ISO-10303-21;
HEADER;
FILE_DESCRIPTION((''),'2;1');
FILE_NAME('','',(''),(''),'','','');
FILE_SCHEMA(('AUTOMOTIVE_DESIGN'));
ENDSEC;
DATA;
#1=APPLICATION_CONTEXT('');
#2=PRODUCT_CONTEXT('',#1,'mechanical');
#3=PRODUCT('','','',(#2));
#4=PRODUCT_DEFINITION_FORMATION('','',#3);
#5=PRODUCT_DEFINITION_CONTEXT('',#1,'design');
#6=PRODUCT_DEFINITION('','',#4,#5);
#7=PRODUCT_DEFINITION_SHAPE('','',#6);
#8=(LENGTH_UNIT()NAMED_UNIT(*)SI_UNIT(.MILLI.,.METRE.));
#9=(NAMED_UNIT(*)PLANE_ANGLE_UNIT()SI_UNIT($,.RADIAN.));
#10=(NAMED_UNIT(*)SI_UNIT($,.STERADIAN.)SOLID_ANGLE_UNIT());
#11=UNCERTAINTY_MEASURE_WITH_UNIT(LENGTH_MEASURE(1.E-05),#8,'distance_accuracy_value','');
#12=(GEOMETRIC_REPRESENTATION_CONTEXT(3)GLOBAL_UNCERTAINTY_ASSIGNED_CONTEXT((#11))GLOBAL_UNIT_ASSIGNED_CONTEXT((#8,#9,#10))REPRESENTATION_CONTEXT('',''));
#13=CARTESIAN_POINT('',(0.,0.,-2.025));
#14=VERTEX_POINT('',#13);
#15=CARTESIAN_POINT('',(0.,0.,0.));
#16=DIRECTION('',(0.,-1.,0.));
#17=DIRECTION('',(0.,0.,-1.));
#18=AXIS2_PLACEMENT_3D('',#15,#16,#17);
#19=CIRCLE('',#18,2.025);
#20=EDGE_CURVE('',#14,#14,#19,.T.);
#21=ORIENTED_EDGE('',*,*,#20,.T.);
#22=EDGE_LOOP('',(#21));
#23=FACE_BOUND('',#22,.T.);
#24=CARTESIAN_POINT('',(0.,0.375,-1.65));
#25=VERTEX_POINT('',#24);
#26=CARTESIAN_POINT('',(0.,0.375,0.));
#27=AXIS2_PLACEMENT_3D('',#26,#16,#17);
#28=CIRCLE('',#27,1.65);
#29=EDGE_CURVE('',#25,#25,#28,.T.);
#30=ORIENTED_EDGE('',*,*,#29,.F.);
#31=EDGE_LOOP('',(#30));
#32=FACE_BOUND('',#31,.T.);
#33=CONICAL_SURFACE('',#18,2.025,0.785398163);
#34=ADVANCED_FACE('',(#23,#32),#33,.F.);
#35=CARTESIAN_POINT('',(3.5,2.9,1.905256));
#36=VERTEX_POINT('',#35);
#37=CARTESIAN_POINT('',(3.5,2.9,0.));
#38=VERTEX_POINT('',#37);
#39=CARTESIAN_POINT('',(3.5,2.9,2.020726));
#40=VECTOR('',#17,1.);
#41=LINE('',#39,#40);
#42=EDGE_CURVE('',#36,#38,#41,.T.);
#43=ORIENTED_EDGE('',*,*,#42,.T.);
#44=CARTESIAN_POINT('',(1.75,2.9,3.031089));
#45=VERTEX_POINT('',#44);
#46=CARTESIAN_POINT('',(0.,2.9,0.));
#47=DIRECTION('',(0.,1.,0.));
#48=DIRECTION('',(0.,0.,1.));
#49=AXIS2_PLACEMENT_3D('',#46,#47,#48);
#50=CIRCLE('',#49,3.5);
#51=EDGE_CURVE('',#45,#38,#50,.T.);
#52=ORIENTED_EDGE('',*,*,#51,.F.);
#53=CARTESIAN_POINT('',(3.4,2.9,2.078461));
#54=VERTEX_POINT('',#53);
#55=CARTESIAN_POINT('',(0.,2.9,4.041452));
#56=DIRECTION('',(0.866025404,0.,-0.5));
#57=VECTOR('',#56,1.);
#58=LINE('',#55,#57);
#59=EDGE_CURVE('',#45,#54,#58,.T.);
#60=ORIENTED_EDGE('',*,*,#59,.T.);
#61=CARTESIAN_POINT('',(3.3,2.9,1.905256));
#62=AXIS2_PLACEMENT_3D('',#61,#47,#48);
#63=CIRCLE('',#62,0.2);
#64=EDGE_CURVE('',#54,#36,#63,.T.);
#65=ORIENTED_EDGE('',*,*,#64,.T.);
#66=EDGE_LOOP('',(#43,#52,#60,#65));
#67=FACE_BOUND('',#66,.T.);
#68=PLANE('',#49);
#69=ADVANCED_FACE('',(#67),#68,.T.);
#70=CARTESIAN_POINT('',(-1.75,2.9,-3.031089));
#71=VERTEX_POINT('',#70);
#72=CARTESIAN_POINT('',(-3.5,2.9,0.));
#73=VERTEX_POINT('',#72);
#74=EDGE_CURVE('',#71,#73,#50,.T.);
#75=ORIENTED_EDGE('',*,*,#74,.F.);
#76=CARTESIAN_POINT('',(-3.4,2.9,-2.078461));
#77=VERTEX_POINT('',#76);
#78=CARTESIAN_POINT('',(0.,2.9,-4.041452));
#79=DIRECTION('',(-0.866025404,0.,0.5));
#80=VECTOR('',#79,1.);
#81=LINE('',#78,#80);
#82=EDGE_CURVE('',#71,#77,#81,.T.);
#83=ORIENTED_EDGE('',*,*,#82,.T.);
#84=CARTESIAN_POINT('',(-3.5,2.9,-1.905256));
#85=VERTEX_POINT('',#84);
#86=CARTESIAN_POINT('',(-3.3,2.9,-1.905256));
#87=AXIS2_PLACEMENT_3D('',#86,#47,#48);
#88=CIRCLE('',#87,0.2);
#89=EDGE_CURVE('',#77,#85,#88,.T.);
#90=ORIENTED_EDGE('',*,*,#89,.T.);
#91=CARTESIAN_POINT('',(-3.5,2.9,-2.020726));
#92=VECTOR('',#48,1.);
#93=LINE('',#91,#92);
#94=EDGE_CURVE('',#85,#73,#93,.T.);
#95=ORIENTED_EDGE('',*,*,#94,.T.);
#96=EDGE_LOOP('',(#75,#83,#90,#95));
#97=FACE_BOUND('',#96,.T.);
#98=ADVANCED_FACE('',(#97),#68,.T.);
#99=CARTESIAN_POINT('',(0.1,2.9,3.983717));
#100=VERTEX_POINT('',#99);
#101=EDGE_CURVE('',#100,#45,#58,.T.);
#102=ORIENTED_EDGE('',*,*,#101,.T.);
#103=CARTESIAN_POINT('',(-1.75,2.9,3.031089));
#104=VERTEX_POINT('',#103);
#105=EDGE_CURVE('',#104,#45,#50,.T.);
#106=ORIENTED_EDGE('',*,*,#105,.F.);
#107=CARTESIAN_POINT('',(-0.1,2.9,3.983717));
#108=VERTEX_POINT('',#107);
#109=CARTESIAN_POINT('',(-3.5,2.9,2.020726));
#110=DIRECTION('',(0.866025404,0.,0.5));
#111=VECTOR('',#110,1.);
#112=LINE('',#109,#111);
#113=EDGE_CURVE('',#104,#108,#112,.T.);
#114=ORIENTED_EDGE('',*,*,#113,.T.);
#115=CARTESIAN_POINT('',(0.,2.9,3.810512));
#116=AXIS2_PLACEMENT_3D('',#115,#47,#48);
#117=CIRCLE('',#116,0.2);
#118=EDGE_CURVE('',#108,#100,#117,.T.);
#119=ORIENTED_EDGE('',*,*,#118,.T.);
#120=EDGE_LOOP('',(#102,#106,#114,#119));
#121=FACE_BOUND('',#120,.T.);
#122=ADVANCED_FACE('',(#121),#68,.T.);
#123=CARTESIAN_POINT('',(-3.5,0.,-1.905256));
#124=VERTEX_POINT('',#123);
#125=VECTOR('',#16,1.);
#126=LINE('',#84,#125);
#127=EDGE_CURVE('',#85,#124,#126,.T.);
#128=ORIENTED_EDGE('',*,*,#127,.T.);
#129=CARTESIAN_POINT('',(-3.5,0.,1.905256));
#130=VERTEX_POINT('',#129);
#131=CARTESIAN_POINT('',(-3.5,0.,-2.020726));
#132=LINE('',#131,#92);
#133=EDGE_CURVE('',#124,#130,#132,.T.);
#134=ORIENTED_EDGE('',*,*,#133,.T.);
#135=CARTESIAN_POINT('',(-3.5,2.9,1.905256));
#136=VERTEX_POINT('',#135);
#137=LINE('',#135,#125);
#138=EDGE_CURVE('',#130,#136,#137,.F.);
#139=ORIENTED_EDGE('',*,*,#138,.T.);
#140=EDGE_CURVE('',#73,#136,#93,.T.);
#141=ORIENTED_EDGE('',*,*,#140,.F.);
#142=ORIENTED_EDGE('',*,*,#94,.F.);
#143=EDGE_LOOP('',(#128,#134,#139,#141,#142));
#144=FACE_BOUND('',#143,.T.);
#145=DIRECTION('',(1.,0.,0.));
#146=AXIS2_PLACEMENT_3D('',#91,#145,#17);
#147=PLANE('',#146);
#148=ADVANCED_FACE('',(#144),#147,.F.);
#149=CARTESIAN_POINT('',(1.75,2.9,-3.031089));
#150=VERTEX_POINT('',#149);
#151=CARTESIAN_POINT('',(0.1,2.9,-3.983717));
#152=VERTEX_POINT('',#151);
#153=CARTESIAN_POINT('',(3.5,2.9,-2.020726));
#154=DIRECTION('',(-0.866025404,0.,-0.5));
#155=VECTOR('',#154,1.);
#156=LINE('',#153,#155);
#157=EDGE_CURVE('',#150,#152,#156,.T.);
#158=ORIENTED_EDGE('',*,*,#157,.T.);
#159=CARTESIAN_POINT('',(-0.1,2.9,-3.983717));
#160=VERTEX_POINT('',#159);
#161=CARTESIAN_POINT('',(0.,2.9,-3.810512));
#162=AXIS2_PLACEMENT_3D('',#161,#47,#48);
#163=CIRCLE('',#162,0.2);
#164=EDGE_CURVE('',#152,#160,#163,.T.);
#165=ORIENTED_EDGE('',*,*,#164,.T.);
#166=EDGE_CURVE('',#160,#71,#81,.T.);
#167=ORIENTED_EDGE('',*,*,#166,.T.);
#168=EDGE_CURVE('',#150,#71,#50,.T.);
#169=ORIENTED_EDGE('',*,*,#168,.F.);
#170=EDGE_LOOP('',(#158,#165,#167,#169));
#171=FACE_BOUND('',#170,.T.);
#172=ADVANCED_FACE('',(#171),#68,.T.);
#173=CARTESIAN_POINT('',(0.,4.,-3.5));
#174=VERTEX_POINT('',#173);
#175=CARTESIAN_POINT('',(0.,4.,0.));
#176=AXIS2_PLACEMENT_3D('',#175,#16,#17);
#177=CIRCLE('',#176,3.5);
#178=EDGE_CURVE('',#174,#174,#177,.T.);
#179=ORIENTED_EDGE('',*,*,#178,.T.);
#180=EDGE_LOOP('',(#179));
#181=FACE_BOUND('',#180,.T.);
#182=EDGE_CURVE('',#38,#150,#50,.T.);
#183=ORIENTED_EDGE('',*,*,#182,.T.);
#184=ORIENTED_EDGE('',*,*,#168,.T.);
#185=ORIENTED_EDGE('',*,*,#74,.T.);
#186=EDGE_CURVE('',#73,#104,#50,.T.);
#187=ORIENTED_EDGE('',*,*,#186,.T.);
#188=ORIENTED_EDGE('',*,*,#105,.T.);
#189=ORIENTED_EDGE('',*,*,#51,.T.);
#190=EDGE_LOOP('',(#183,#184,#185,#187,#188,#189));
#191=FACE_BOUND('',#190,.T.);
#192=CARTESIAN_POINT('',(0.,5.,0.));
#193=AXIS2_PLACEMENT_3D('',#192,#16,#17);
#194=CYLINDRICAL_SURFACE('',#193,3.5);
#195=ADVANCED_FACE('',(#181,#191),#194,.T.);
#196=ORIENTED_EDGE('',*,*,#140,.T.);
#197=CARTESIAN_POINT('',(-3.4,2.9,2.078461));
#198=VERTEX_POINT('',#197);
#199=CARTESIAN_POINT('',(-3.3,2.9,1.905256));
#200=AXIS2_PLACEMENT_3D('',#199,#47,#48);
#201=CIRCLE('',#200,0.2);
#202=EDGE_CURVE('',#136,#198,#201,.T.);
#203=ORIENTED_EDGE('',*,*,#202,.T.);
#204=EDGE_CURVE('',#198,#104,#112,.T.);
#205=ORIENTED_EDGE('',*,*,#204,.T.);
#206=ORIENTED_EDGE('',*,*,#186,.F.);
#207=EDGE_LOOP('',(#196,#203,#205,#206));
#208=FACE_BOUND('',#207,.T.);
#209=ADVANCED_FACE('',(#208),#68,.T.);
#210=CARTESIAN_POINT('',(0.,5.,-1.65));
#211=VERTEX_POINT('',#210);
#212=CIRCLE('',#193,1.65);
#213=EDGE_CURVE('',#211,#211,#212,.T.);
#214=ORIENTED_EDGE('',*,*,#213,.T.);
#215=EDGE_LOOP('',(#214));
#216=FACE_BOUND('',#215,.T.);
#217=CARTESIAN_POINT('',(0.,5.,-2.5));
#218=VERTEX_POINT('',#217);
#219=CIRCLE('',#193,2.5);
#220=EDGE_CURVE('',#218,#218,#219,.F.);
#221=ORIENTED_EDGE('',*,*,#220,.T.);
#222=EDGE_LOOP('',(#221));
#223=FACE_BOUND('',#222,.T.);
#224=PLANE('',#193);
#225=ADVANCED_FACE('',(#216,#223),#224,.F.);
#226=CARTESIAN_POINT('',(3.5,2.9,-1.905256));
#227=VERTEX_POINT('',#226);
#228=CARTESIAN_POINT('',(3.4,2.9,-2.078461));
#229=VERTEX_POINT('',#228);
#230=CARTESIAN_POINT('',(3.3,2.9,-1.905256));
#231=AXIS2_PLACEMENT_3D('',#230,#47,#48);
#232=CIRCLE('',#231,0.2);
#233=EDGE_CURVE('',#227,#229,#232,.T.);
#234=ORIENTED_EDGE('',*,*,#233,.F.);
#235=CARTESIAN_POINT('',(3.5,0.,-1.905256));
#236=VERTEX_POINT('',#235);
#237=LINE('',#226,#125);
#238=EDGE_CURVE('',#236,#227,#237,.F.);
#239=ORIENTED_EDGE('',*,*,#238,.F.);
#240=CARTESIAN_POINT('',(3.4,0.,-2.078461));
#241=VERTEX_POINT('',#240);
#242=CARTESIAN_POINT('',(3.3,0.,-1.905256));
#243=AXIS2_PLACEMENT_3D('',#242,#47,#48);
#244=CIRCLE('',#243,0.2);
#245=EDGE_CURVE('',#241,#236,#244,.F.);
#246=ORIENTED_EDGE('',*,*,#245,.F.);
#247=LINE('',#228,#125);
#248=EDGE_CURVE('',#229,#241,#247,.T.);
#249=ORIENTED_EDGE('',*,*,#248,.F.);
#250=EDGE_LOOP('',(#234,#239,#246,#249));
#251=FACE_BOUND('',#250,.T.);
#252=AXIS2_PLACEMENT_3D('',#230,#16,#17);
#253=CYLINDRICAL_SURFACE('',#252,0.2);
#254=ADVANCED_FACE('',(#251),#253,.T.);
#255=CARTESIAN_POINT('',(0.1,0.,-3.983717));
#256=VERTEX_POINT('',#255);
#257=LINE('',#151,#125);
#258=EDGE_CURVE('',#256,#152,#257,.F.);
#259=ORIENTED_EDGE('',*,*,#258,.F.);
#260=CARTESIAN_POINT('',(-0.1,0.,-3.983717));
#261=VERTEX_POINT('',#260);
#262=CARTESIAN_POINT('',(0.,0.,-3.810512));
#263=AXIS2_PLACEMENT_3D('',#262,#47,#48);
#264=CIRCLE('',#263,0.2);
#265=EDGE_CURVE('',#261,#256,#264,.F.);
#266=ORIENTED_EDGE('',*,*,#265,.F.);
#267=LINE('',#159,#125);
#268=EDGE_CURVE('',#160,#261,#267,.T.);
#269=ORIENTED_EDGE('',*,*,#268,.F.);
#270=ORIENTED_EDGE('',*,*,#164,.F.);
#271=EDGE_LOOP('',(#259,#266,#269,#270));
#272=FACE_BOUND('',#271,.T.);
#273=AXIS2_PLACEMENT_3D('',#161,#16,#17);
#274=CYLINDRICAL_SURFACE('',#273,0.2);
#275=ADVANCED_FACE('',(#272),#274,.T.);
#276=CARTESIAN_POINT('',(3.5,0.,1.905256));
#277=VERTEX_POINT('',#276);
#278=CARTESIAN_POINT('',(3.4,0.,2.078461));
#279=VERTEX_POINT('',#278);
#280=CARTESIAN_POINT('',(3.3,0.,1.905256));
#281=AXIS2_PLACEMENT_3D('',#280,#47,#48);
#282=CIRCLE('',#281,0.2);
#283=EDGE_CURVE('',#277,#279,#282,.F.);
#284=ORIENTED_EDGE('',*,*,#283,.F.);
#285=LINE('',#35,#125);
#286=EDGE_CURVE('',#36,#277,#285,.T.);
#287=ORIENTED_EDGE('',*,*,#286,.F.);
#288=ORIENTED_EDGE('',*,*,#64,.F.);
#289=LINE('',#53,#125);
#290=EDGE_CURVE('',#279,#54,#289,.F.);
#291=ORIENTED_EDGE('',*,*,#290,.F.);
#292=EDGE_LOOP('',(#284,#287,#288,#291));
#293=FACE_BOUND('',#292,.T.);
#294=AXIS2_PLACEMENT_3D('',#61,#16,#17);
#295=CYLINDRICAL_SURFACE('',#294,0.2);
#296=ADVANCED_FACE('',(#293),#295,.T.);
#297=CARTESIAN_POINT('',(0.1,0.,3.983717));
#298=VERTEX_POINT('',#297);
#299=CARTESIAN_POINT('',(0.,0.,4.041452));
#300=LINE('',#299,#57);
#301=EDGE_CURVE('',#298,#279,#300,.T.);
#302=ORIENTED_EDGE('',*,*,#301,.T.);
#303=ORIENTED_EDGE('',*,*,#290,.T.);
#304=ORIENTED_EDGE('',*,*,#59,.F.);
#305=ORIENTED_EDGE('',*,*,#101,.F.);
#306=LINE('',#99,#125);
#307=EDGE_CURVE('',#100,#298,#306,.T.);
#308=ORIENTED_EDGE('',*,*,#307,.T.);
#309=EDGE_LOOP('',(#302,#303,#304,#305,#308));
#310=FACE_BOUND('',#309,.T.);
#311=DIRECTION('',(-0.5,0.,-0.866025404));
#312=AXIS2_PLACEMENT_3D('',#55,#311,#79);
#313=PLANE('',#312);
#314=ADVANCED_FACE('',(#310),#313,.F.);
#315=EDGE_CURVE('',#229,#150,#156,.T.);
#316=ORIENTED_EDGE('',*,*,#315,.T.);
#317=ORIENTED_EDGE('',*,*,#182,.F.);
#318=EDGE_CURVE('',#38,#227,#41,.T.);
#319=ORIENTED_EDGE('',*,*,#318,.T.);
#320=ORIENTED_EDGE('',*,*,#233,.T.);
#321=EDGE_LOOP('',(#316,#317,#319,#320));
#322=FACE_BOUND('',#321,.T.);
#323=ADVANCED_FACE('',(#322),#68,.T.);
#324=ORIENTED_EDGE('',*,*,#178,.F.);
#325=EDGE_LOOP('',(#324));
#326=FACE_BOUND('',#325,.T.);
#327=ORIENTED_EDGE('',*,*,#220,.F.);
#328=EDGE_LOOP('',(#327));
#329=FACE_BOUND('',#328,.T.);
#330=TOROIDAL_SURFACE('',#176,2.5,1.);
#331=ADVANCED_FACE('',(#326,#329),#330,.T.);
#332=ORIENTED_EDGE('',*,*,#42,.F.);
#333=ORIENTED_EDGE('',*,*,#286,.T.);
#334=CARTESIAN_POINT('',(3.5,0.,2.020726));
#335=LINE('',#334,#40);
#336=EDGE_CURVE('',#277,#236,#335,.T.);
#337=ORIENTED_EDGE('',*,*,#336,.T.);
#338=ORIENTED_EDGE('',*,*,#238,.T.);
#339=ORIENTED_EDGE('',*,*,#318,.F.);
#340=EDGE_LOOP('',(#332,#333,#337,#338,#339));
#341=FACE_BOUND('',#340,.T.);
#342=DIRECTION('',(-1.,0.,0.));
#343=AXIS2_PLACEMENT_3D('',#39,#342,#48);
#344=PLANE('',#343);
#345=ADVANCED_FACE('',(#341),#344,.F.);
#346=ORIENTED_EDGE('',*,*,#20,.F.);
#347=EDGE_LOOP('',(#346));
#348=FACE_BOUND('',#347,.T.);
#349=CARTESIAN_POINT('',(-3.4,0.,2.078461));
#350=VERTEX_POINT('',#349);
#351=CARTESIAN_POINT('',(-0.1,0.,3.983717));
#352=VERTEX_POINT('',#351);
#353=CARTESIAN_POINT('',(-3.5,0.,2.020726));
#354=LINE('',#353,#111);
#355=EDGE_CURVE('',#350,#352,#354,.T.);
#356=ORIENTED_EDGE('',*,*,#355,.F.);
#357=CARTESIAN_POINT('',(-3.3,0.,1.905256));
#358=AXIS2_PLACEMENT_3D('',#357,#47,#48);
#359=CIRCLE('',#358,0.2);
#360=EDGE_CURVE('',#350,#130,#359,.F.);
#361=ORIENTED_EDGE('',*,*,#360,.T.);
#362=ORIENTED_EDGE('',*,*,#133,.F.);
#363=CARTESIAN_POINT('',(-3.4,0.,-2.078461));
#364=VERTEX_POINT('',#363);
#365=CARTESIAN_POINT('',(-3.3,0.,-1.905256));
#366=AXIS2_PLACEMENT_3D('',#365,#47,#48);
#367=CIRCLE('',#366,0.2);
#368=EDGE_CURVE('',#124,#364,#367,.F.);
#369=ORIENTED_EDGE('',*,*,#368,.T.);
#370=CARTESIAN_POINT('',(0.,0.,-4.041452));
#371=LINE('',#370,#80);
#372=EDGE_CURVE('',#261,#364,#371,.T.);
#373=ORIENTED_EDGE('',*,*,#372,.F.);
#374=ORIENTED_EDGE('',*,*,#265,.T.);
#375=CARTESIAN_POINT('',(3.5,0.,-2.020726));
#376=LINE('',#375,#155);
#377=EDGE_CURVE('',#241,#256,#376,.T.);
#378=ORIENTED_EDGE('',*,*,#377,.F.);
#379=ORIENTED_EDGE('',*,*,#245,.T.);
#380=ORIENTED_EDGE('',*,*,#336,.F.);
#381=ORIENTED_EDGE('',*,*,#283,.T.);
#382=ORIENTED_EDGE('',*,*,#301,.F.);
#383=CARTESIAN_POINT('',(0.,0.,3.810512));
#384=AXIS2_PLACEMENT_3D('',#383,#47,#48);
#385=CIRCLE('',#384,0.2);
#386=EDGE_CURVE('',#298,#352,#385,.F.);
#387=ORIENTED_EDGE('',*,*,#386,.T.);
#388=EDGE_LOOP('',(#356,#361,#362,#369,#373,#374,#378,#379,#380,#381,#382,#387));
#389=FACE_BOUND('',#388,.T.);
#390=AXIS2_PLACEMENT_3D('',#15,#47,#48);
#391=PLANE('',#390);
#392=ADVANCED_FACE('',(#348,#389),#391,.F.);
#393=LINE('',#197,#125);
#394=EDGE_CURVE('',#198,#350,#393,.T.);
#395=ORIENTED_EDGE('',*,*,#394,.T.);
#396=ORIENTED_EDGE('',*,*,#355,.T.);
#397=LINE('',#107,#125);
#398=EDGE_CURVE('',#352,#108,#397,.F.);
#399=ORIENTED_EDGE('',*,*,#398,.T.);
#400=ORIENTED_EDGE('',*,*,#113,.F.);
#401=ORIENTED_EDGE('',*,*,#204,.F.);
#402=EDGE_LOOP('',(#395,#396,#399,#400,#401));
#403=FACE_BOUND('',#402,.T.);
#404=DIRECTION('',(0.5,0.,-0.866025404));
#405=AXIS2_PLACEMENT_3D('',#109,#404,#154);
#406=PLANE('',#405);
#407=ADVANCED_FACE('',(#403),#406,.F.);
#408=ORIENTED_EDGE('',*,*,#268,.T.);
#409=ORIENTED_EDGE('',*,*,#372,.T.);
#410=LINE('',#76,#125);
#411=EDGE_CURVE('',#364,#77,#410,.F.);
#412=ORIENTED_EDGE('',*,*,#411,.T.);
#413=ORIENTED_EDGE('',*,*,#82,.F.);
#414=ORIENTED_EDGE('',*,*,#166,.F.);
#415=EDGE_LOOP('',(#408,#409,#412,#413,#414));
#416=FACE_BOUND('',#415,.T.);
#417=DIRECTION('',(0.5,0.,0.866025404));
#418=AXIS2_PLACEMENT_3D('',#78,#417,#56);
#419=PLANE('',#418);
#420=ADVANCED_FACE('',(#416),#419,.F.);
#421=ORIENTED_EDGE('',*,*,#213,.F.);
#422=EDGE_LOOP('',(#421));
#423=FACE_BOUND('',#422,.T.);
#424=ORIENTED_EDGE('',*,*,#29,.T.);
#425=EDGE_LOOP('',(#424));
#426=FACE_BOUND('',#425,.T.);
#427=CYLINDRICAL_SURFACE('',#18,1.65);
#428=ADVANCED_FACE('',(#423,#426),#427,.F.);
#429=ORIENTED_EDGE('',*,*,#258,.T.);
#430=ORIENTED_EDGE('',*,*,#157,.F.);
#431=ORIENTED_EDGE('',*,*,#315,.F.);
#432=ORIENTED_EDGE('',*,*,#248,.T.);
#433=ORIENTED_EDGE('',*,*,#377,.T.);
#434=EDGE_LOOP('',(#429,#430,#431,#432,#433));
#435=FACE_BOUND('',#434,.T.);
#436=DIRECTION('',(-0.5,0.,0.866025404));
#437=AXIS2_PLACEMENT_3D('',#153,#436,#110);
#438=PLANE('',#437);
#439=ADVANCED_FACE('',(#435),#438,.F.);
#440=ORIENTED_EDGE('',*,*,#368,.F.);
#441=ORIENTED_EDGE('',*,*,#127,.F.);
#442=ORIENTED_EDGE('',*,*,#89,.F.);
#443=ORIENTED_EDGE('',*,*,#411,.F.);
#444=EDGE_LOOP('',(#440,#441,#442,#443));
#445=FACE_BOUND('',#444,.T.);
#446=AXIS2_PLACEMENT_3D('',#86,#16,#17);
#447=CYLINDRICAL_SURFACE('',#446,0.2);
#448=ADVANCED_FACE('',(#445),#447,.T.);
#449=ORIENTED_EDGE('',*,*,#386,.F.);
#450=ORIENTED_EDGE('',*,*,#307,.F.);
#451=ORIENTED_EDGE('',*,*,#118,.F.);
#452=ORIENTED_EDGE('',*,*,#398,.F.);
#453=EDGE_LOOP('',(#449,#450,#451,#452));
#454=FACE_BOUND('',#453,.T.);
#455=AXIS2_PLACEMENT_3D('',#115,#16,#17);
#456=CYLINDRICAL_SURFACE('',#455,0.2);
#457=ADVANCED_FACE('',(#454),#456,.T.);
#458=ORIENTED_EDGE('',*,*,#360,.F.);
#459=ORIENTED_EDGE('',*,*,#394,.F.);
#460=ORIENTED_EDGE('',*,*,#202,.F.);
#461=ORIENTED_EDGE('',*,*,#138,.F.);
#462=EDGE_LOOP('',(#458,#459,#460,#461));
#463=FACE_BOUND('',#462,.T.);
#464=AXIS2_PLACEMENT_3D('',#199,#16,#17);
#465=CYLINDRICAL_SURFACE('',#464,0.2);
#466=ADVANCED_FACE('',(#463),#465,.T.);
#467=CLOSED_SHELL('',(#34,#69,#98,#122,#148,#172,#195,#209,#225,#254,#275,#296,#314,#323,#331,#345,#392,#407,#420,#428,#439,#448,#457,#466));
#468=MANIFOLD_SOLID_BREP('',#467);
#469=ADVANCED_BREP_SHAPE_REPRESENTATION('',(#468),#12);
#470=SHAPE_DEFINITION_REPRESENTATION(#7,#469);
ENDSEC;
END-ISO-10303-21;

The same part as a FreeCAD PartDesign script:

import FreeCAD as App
import Part
import Sketcher
Q = App.Units.Quantity


def edges_at(feature, points):
    """Names of the edges that pass closest to the given points."""
    edges = feature.Shape.Edges
    near = lambda p: min(range(len(edges)), key=lambda i: edges[i].distToShape(Part.Vertex(*p))[0])
    return sorted({f"Edge{near(p) + 1}" for p in points})


def add_polygon(sketch, points):
    """Adds a closed chain of lines whose ends are joined by coincident constraints."""
    first, n = sketch.GeometryCount, len(points)
    for a, b in zip(points, points[1:] + points[:1]):
        sketch.addGeometry(Part.LineSegment(App.Vector(*a, 0), App.Vector(*b, 0)), False)
    for i in range(n):
        sketch.addConstraint(Sketcher.Constraint("Coincident", first + i, 2, first + (i + 1) % n, 1))

doc = App.newDocument("Part")
params = doc.addObject("Spreadsheet::Sheet", "Params")
for row, (alias, value) in enumerate([
    ("pad1_length", "2.9 mm"),
    ("sketch2_diameter", "7 mm"),
    ("pad2_length", "5 mm"),
    ("fillet_radius", "1 mm"),
    ("fillet2_radius", "0.2 mm"),
    ("sketch3_diameter", "3.3 mm"),
    ("hole_diameter", "3.3 mm"),
    ("hole_depth", "10.1 mm"),
    ("hole_csink_diameter", "4.05 mm"),
], start=1):
    params.set(f"A{row}", alias)
    params.set(f"B{row}", "=" + value)
    params.setAlias(f"B{row}", alias)

body = doc.addObject("PartDesign::Body", "Body")

sketch1 = body.newObject("Sketcher::SketchObject", "Sketch")
sketch1.AttachmentSupport = (doc.getObject("XZ_Plane"), [""])
sketch1.MapMode = "FlatFace"
add_polygon(sketch1, [(3.5, 2), (3.5, -2), (0, -4), (-3.5, -2), (-3.5, 2), (0, 4)])
sketch1.addConstraint([
    Sketcher.Constraint("Vertical", 0),
    Sketcher.Constraint("Vertical", 3),
    Sketcher.Constraint("Symmetric", 0, 2, 3, 2, -1, 1),
    Sketcher.Constraint("Symmetric", 1, 2, 4, 2, -1, 1),
    Sketcher.Constraint("PointOnObject", 1, 2, -2),
    Sketcher.Constraint("Parallel", 2, 5),
    Sketcher.Constraint("Horizontal", 0, 2, 2, 2),
    Sketcher.Constraint("Angle", 1, Q("-150 deg")),
    Sketcher.Constraint("DistanceX", 2, 2, 0, 2, 7.0),
    Sketcher.Constraint("DistanceY", 0, 2, 0, 1, 4.041452),
])
pad1 = body.newObject("PartDesign::Pad", "Pad")
pad1.Profile = sketch1
pad1.setExpression("Length", "Params.pad1_length")
pad1.Reversed = True

sketch2 = body.newObject("Sketcher::SketchObject", "Sketch001")
sketch2.AttachmentSupport = (doc.getObject("XZ_Plane"), [""])
sketch2.MapMode = "FlatFace"
sketch2.addGeometry(Part.Circle(App.Vector(0, 0, 0), App.Vector(0, 0, 1), 3.5), False)
sketch2.addConstraint([
    Sketcher.Constraint("Coincident", 0, 3, -1, 1),
    Sketcher.Constraint("Diameter", 0, 7.0),
])
sketch2.setExpression("Constraints[1]", "Params.sketch2_diameter")
pad2 = body.newObject("PartDesign::Pad", "Pad001")
pad2.Profile = sketch2
pad2.setExpression("Length", "Params.pad2_length")
pad2.Reversed = True
doc.recompute()

fillet = body.newObject("PartDesign::Fillet", "Fillet")
fillet.Base = (pad2, edges_at(pad2, [(-3.5, 5, 0)]))
fillet.setExpression("Radius", "Params.fillet_radius")
doc.recompute()

fillet2 = body.newObject("PartDesign::Fillet", "Fillet001")
fillet2.Base = (fillet, edges_at(fillet, [
    (0, 1.45, 4.041),
    (-3.5, 1.45, 2.021),
    (-3.5, 1.45, -2.021),
    (0, 1.45, -4.041),
    (3.5, 1.45, -2.021),
    (3.5, 1.45, 2.021),
]))
fillet2.setExpression("Radius", "Params.fillet2_radius")

sketch3 = body.newObject("Sketcher::SketchObject", "Sketch002")
sketch3.AttachmentSupport = (doc.getObject("XZ_Plane"), [""])
sketch3.MapMode = "FlatFace"
sketch3.addGeometry(Part.Circle(App.Vector(0, 0, 0), App.Vector(0, 0, 1), 1.6), False)
sketch3.addConstraint([
    Sketcher.Constraint("Coincident", 0, 3, -1, 1),
    Sketcher.Constraint("Diameter", 0, 3.3),
])
sketch3.setExpression("Constraints[1]", "Params.sketch3_diameter")
doc.recompute()
hole = body.newObject("PartDesign::Hole", "Hole")
hole.Profile = sketch3
hole.ThreadType = "None"
hole.setExpression("Diameter", "Params.hole_diameter")
hole.DepthType = "Dimension"
hole.setExpression("Depth", "Params.hole_depth")
hole.DrillPoint = "Angled"
hole.DrillPointAngle = 118
hole.HoleCutType = "Countersink"
hole.setExpression("HoleCutDiameter", "Params.hole_csink_diameter")
hole.HoleCutCountersinkAngle = 90

doc.recompute()
